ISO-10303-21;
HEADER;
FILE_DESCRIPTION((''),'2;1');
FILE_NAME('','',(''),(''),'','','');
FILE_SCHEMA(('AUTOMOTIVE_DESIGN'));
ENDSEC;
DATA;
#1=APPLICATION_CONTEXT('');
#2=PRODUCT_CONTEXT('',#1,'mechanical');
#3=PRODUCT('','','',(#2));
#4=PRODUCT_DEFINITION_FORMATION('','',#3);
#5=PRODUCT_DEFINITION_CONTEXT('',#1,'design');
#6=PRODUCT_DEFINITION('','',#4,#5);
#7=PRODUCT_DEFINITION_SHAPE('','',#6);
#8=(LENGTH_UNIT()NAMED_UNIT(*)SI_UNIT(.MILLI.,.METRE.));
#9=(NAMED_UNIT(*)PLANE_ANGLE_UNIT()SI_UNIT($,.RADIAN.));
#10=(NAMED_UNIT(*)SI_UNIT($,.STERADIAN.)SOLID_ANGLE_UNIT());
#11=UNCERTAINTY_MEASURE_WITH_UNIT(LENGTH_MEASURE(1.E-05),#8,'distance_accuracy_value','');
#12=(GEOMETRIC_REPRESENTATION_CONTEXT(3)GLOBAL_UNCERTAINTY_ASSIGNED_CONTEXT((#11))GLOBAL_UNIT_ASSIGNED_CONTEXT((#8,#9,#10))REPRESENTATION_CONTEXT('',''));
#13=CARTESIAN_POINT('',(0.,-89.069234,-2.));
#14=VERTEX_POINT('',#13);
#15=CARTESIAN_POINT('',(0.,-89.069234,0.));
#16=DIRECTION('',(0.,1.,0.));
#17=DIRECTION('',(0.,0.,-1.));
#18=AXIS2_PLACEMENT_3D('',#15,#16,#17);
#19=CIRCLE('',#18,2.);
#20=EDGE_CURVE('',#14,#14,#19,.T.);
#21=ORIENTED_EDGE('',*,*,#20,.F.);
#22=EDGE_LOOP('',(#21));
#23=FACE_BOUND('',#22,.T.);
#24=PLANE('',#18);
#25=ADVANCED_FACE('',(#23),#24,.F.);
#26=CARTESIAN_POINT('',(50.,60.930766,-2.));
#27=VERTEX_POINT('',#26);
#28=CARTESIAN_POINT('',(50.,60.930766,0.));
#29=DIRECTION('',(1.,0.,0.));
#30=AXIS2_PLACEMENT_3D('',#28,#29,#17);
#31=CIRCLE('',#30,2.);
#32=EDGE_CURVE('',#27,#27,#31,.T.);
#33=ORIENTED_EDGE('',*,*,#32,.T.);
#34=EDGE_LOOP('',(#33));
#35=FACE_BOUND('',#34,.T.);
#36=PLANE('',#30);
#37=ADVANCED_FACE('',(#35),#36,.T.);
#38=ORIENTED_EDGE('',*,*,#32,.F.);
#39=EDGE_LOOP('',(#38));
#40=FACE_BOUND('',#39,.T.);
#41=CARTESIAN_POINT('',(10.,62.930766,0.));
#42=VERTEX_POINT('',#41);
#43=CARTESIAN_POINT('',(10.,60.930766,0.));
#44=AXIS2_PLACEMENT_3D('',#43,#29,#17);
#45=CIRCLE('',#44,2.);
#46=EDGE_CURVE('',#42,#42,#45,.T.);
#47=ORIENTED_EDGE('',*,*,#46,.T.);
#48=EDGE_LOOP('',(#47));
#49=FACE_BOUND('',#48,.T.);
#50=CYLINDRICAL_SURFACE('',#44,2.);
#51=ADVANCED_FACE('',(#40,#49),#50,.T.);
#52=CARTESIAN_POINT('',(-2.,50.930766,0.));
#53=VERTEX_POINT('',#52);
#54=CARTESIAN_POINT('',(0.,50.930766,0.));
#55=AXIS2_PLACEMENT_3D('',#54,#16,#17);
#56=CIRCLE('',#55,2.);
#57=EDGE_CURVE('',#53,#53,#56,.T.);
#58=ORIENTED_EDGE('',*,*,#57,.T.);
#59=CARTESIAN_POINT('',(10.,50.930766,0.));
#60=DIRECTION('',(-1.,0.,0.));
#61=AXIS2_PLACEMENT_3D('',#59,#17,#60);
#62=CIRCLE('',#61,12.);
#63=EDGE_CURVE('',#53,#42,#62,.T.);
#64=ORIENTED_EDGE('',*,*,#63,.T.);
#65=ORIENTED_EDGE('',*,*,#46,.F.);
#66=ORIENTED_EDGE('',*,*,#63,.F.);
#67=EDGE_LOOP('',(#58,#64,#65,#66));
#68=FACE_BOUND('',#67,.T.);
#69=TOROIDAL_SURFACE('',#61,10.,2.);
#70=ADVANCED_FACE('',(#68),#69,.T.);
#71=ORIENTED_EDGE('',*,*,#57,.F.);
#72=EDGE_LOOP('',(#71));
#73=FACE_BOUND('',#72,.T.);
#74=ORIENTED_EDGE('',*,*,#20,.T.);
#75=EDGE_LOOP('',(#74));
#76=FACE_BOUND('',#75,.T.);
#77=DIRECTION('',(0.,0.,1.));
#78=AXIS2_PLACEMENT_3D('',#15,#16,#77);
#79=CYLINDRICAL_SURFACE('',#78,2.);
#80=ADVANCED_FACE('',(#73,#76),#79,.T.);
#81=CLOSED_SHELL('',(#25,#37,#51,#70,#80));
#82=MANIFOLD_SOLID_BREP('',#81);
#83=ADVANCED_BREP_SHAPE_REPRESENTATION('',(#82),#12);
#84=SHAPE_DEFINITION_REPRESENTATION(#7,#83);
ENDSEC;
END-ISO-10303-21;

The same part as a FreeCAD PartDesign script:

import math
import FreeCAD as App
import Part
import Sketcher

doc = App.newDocument("Part")
body = doc.addObject("PartDesign::Body", "Body")

# Sketch on YZ plane
sketch1 = body.newObject("Sketcher::SketchObject", "Sketch")
sketch1.AttachmentSupport = (doc.getObject("YZ_Plane"), [""])
sketch1.MapMode = "FlatFace"
sketch1.AttachmentOffset = App.Placement(App.Vector(0, 0, 50), App.Rotation())
sketch1.addGeometry(Part.Circle(App.Vector(60.9, 0, 0), App.Vector(0, 0, 1), 2), False)
sketch1.addConstraint(Sketcher.Constraint("PointOnObject", 0, 3, -1))
sketch1.addConstraint(Sketcher.Constraint("Diameter", 0, 4.0))
sketch1.addConstraint(Sketcher.Constraint("DistanceX", -1, 1, 0, 3, 60.930766))

# Sketch on XY plane
sketch2 = body.newObject("Sketcher::SketchObject", "Sketch001")
sketch2.AttachmentSupport = (doc.getObject("XY_Plane"), [""])
sketch2.MapMode = "FlatFace"
sketch2.addGeometry(Part.LineSegment(App.Vector(0, -89, 0), App.Vector(0, 51, 0)), False)
sketch2.addGeometry(Part.ArcOfCircle(Part.Circle(App.Vector(10, 51, 0), App.Vector(0, 0, 1), 10), math.radians(90), math.radians(180)), False)
sketch2.addGeometry(Part.LineSegment(App.Vector(10, 61, 0), App.Vector(50, 61, 0)), False)
sketch2.addConstraint(Sketcher.Constraint("Tangent", 0, 2, 1, 2))
sketch2.addConstraint(Sketcher.Constraint("Tangent", 1, 1, 2, 1))
sketch2.addConstraint(Sketcher.Constraint("Vertical", 0))
sketch2.addConstraint(Sketcher.Constraint("Horizontal", 2))
sketch2.addConstraint(Sketcher.Constraint("PointOnObject", 0, 1, -2))
sketch2.addConstraint(Sketcher.Constraint("Radius", 1, 10.0))
sketch2.addConstraint(Sketcher.Constraint("DistanceX", 2, 1, 2, 2, 40.0))
sketch2.addConstraint(Sketcher.Constraint("DistanceY", 0, 1, 0, 2, 140.0))
sketch2.addConstraint(Sketcher.Constraint("DistanceY", -1, 1, 1, 3, 50.930766))
doc.recompute()

additivepipe = body.newObject("PartDesign::AdditivePipe", "AdditivePipe")
additivepipe.Profile = sketch1
additivepipe.Spine = (sketch2, ["Edge1", "Edge2", "Edge3"])

doc.recompute()
